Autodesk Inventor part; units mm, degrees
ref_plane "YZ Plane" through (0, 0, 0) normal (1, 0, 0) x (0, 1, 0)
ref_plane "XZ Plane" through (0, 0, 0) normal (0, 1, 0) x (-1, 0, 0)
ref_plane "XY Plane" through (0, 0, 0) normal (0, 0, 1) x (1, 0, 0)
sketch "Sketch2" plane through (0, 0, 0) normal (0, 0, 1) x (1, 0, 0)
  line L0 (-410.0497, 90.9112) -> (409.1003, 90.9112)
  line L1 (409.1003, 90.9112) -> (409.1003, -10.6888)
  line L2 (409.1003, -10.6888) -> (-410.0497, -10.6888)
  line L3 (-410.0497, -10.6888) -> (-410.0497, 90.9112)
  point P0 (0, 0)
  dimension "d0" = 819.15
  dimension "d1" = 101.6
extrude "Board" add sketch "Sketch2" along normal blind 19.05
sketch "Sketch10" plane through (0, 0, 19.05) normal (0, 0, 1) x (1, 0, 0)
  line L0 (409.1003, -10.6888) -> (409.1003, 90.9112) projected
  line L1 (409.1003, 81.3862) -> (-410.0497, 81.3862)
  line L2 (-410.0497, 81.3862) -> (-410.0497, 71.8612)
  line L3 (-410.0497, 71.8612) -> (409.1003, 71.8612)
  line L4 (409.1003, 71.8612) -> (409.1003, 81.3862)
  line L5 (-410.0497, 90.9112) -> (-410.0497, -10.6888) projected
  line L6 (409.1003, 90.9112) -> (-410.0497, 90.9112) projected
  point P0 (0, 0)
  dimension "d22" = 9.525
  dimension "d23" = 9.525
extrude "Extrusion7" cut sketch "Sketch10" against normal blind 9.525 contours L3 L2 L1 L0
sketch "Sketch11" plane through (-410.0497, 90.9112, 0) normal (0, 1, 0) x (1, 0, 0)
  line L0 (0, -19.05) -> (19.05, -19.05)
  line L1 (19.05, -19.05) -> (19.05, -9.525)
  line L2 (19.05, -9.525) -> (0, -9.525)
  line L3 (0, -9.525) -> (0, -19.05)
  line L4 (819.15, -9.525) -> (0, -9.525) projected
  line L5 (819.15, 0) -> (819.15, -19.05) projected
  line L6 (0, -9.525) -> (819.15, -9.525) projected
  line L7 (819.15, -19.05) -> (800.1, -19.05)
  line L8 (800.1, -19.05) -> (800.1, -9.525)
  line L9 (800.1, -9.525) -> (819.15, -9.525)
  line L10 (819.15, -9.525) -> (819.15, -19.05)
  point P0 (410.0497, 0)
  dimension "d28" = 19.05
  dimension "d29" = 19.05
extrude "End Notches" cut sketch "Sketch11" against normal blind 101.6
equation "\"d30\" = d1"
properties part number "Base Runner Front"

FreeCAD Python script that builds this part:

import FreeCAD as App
import Part
import Sketcher

V = App.Vector
Q = App.Units.Quantity


def add_polygon(sketch, points):
    """Adds a closed chain of lines whose ends are joined by coincident constraints."""
    first, n = sketch.GeometryCount, len(points)
    for a, b in zip(points, points[1:] + points[:1]):
        sketch.addGeometry(Part.LineSegment(App.Vector(*a, 0), App.Vector(*b, 0)), False)
    for i in range(n):
        sketch.addConstraint(Sketcher.Constraint("Coincident", first + i, 2, first + (i + 1) % n, 1))

doc = App.newDocument("Part")
params = doc.addObject("Spreadsheet::Sheet", "Params")
for row, (alias, value) in enumerate([
    ("sketch1_height", "4 in"),
    ("sketch1_width", "32.25 in"),
    ("pad1_length", "0.75 in"),
    ("sketch2_height", "0.375 in"),
    ("sketch2_width", "32.25 in"),
    ("pocket1_length", "0.375 in"),
    ("sketch3_width", "0.75 in"),
    ("sketch3_height", "0.375 in"),
    ("pocket2_length", "4 in"),
], start=1):
    params.set(f"A{row}", alias)
    params.set(f"B{row}", "=" + value)
    params.setAlias(f"B{row}", alias)

body = doc.addObject("PartDesign::Body", "Body")

# Sketch on XY plane
sketch1 = body.newObject("Sketcher::SketchObject", "Sketch")
sketch1.AttachmentSupport = (doc.getObject("XY_Plane"), [""])
sketch1.MapMode = "FlatFace"
add_polygon(sketch1, [(409, 91), (-410, 91), (-410, -11), (409, -11)])  # lines 0-3
sketch1.addConstraint([
    Sketcher.Constraint("Horizontal", 0),
    Sketcher.Constraint("Vertical", 1),
    Sketcher.Constraint("Horizontal", 2),
    Sketcher.Constraint("Vertical", 3),
    Sketcher.Constraint("DistanceY", 1, 2, 1, 1, Q("4 in")),
    Sketcher.Constraint("DistanceX", 0, 2, 0, 1, Q("32.25 in")),
    Sketcher.Constraint("DistanceX", 0, 2, -1, 1, Q("16.1437 in")),
    Sketcher.Constraint("DistanceY", -1, 1, 0, 2, Q("90.9112 mm")),
])
sketch1.setExpression("Constraints[8]", "Params.sketch1_height")
sketch1.setExpression("Constraints[9]", "Params.sketch1_width")
pad1 = body.newObject("PartDesign::Pad", "Pad")
pad1.Profile = sketch1
pad1.setExpression("Length", "Params.pad1_length")

# Sketch on XY plane
sketch2 = body.newObject("Sketcher::SketchObject", "Sketch001")
sketch2.AttachmentSupport = (doc.getObject("XY_Plane"), [""])
sketch2.MapMode = "FlatFace"
sketch2.AttachmentOffset = App.Placement(V(0, 0, 0.75 * 25.4), App.Rotation())
add_polygon(sketch2, [(-410, 72), (409, 72), (409, 81), (-410, 81)])  # lines 0-3
sketch2.addConstraint([
    Sketcher.Constraint("Horizontal", 0),
    Sketcher.Constraint("Vertical", 1),
    Sketcher.Constraint("Horizontal", 2),
    Sketcher.Constraint("Vertical", 3),
    Sketcher.Constraint("DistanceY", 1, 1, 1, 2, Q("0.375 in")),
    Sketcher.Constraint("DistanceX", 0, 1, 0, 2, Q("32.25 in")),
    Sketcher.Constraint("DistanceX", -1, 1, 0, 2, Q("16.1063 in")),
    Sketcher.Constraint("DistanceY", -1, 1, 0, 2, Q("71.8612 mm")),
])
sketch2.setExpression("Constraints[8]", "Params.sketch2_height")
sketch2.setExpression("Constraints[9]", "Params.sketch2_width")
pocket1 = body.newObject("PartDesign::Pocket", "Pocket")
pocket1.Profile = sketch2
pocket1.setExpression("Length", "Params.pocket1_length")

# Sketch on XZ plane
sketch3 = body.newObject("Sketcher::SketchObject", "Sketch002")
sketch3.AttachmentSupport = (doc.getObject("XZ_Plane"), [""])
sketch3.MapMode = "FlatFace"
sketch3.AttachmentOffset = App.Placement(V(0, 0, -90.9112), App.Rotation())
add_polygon(sketch3, [(-410, 10), (-410, 19), (-391, 19), (-391, 10)])  # lines 0-3
add_polygon(sketch3, [(409, 10), (390, 10), (390, 19), (409, 19)])  # lines 4-7
sketch3.addConstraint([
    Sketcher.Constraint("Vertical", 0),
    Sketcher.Constraint("Horizontal", 1),
    Sketcher.Constraint("Vertical", 2),
    Sketcher.Constraint("Horizontal", 3),
    Sketcher.Constraint("Horizontal", 4),
    Sketcher.Constraint("Vertical", 5),
    Sketcher.Constraint("Horizontal", 6),
    Sketcher.Constraint("Vertical", 7),
    Sketcher.Constraint("Horizontal", 3, 2, 4, 2),
    Sketcher.Constraint("Horizontal", 1, 2, 5, 2),
    Sketcher.Constraint("Equal", 3, 4),
    Sketcher.Constraint("DistanceX", 1, 1, 1, 2, Q("0.75 in")),
    Sketcher.Constraint("DistanceY", -1, 1, 0, 2, Q("0.75 in")),
    Sketcher.Constraint("DistanceX", 3, 2, 4, 2, Q("31.5 in")),
    Sketcher.Constraint("DistanceY", 0, 1, 0, 2, Q("0.375 in")),
    Sketcher.Constraint("DistanceX", 0, 2, -1, 1, Q("16.1437 in")),
])
sketch3.setExpression("Constraints[19]", "Params.sketch3_width")
sketch3.setExpression("Constraints[22]", "Params.sketch3_height")
pocket2 = body.newObject("PartDesign::Pocket", "Pocket001")
pocket2.Profile = sketch3
pocket2.setExpression("Length", "Params.pocket2_length")
pocket2.Reversed = True

doc.recompute()
